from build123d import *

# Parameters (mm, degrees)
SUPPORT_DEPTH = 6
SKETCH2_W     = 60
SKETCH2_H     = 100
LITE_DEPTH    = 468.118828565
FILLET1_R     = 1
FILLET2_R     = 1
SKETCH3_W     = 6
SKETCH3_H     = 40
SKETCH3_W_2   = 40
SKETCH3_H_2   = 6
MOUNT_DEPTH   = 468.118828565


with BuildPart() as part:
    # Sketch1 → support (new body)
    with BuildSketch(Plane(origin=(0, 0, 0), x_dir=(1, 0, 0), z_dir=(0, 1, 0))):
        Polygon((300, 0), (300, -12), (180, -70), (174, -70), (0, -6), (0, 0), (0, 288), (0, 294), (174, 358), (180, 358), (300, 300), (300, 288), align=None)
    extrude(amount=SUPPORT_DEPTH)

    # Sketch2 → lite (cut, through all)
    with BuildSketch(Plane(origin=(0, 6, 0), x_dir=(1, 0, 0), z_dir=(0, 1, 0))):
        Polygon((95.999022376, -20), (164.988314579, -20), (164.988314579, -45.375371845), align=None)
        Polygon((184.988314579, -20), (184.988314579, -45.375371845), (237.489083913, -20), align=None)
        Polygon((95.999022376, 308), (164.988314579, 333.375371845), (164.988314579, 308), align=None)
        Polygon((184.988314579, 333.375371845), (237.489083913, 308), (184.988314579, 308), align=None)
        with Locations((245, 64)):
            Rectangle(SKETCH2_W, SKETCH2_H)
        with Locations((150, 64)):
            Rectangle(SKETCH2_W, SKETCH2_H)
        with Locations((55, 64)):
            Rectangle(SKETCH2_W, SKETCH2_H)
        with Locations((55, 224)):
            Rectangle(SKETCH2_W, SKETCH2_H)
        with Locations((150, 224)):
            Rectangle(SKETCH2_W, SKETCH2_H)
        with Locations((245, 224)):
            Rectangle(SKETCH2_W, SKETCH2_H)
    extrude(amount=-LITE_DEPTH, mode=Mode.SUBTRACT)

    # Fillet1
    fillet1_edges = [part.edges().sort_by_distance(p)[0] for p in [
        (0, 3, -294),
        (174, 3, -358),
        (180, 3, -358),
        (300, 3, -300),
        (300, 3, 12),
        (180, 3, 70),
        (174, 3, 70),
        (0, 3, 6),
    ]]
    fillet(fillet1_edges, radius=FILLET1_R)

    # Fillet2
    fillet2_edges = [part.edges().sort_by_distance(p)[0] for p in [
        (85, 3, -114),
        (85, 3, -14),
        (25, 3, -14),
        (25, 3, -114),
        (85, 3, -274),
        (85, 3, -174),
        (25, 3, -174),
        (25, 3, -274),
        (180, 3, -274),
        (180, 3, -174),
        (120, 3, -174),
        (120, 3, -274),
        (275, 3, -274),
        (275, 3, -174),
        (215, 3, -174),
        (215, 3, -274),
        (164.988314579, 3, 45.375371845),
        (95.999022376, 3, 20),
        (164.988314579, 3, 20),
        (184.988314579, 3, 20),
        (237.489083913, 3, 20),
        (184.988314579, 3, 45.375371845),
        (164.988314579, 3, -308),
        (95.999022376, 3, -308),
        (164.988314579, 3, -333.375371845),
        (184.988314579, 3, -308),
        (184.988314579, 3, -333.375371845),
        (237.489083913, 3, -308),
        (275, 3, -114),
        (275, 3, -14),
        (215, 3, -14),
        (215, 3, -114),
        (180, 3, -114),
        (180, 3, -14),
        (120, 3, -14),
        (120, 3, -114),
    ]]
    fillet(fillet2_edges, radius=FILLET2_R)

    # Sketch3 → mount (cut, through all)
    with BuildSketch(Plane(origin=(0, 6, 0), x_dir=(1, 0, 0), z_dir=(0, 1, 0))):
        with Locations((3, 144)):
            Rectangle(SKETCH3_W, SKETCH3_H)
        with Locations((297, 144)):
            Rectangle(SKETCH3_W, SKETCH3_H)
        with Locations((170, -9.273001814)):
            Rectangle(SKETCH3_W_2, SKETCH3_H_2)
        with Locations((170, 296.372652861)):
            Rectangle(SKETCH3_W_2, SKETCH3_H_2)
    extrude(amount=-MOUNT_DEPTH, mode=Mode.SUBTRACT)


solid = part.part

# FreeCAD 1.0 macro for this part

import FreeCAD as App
import Part
import Sketcher

V = App.Vector
Q = App.Units.Quantity


def edges_at(feature, points):
    """Names of the edges that pass closest to the given points."""
    edges = feature.Shape.Edges
    near = lambda p: min(range(len(edges)), key=lambda i: edges[i].distToShape(Part.Vertex(*p))[0])
    return sorted({f"Edge{near(p) + 1}" for p in points})

doc = App.newDocument("Part")
body = doc.addObject("PartDesign::Body", "Body")

# Sketch on XZ plane
sketch1 = doc.addObject("Sketcher::SketchObject", "Sketch")
body.addObject(sketch1)
sketch1.AttachmentSupport = (doc.XZ_Plane, [""])
sketch1.MapMode = "FlatFace"
sketch1.addGeometry([
    Part.LineSegment(V(300, 12, 0), V(300, -300, 0)),  # 0
    Part.LineSegment(V(300, -300, 0), V(180, -358, 0)),  # 1
    Part.LineSegment(V(180, -358, 0), V(174, -358, 0)),  # 2
    Part.LineSegment(V(174, -358, 0), V(0, -294, 0)),  # 3
    Part.LineSegment(V(0, -294, 0), V(0, 6, 0)),  # 4
    Part.LineSegment(V(0, 6, 0), V(174, 70, 0)),  # 5
    Part.LineSegment(V(174, 70, 0), V(180, 70, 0)),  # 6
    Part.LineSegment(V(180, 70, 0), V(300, 12, 0)),  # 7
], False)
sketch1.addConstraint([
    Sketcher.Constraint("Coincident", 0, 2, 1, 1),
    Sketcher.Constraint("Coincident", 1, 2, 2, 1),
    Sketcher.Constraint("Coincident", 2, 2, 3, 1),
    Sketcher.Constraint("Coincident", 3, 2, 4, 1),
    Sketcher.Constraint("Coincident", 4, 2, 5, 1),
    Sketcher.Constraint("Coincident", 5, 2, 6, 1),
    Sketcher.Constraint("Coincident", 6, 2, 7, 1),
    Sketcher.Constraint("Coincident", 7, 2, 0, 1),
    Sketcher.Constraint("Vertical", 0),
    Sketcher.Constraint("Horizontal", 2),
    Sketcher.Constraint("Vertical", 4),
    Sketcher.Constraint("Horizontal", 6),
    Sketcher.Constraint("PointOnObject", 3, 2, -2),
    Sketcher.Constraint("Vertical", 2, 2, 5, 2),
    Sketcher.Constraint("Vertical", 1, 2, 6, 2),
    Sketcher.Constraint("Equal", 3, 5),
    Sketcher.Constraint("Equal", 1, 7),
    Sketcher.Constraint("DistanceX", 2, 2, 2, 1, Q("6 mm")),
    Sketcher.Constraint("DistanceY", 0, 2, 0, 1, Q("312 mm")),
    Sketcher.Constraint("DistanceY", 4, 1, 4, 2, Q("300 mm")),
    Sketcher.Constraint("DistanceX", -1, 1, 0, 2, Q("300 mm")),
    Sketcher.Constraint("DistanceY", 0, 2, -1, 1, Q("300 mm")),
    Sketcher.Constraint("DistanceX", -1, 1, 1, 2, Q("180 mm")),
    Sketcher.Constraint("DistanceY", 1, 2, -1, 1, Q("358 mm")),
])
pad1 = doc.addObject("PartDesign::Pad", "Pad")
body.addObject(pad1)
pad1.Profile = sketch1
pad1.Length = 6
pad1.Reversed = True

# Sketch on XZ plane
sketch2 = doc.addObject("Sketcher::SketchObject", "Sketch001")
body.addObject(sketch2)
sketch2.AttachmentSupport = (doc.XZ_Plane, [""])
sketch2.MapMode = "FlatFace"
sketch2.AttachmentOffset = App.Placement(V(0, 0, -6), App.Rotation())
sketch2.addGeometry([
    Part.LineSegment(V(165, 20, 0), V(96, 20, 0)),  # 0
    Part.LineSegment(V(96, 20, 0), V(165, 45, 0)),  # 1
    Part.LineSegment(V(165, 45, 0), V(165, 20, 0)),  # 2
    Part.LineSegment(V(185, 20, 0), V(185, 45, 0)),  # 3
    Part.LineSegment(V(185, 45, 0), V(237, 20, 0)),  # 4
    Part.LineSegment(V(237, 20, 0), V(185, 20, 0)),  # 5
    Part.LineSegment(V(165, -333, 0), V(96, -308, 0)),  # 6
    Part.LineSegment(V(96, -308, 0), V(165, -308, 0)),  # 7
    Part.LineSegment(V(165, -308, 0), V(165, -333, 0)),  # 8
    Part.LineSegment(V(237, -308, 0), V(185, -333, 0)),  # 9
    Part.LineSegment(V(185, -333, 0), V(185, -308, 0)),  # 10
    Part.LineSegment(V(185, -308, 0), V(237, -308, 0)),  # 11
    Part.LineSegment(V(215, -114, 0), V(215, -14, 0)),  # 12
    Part.LineSegment(V(215, -14, 0), V(275, -14, 0)),  # 13
    Part.LineSegment(V(275, -14, 0), V(275, -114, 0)),  # 14
    Part.LineSegment(V(275, -114, 0), V(215, -114, 0)),  # 15
    Part.LineSegment(V(120, -114, 0), V(120, -14, 0)),  # 16
    Part.LineSegment(V(120, -14, 0), V(180, -14, 0)),  # 17
    Part.LineSegment(V(180, -14, 0), V(180, -114, 0)),  # 18
    Part.LineSegment(V(180, -114, 0), V(120, -114, 0)),  # 19
    Part.LineSegment(V(25, -114, 0), V(25, -14, 0)),  # 20
    Part.LineSegment(V(25, -14, 0), V(85, -14, 0)),  # 21
    Part.LineSegment(V(85, -14, 0), V(85, -114, 0)),  # 22
    Part.LineSegment(V(85, -114, 0), V(25, -114, 0)),  # 23
    Part.LineSegment(V(25, -274, 0), V(25, -174, 0)),  # 24
    Part.LineSegment(V(25, -174, 0), V(85, -174, 0)),  # 25
    Part.LineSegment(V(85, -174, 0), V(85, -274, 0)),  # 26
    Part.LineSegment(V(85, -274, 0), V(25, -274, 0)),  # 27
    Part.LineSegment(V(120, -274, 0), V(120, -174, 0)),  # 28
    Part.LineSegment(V(120, -174, 0), V(180, -174, 0)),  # 29
    Part.LineSegment(V(180, -174, 0), V(180, -274, 0)),  # 30
    Part.LineSegment(V(180, -274, 0), V(120, -274, 0)),  # 31
    Part.LineSegment(V(215, -274, 0), V(215, -174, 0)),  # 32
    Part.LineSegment(V(215, -174, 0), V(275, -174, 0)),  # 33
    Part.LineSegment(V(275, -174, 0), V(275, -274, 0)),  # 34
    Part.LineSegment(V(275, -274, 0), V(215, -274, 0)),  # 35
], False)
sketch2.addConstraint([
    Sketcher.Constraint("Coincident", 0, 2, 1, 1),
    Sketcher.Constraint("Coincident", 1, 2, 2, 1),
    Sketcher.Constraint("Coincident", 2, 2, 0, 1),
    Sketcher.Constraint("Coincident", 3, 2, 4, 1),
    Sketcher.Constraint("Coincident", 4, 2, 5, 1),
    Sketcher.Constraint("Coincident", 5, 2, 3, 1),
    Sketcher.Constraint("Coincident", 6, 2, 7, 1),
    Sketcher.Constraint("Coincident", 7, 2, 8, 1),
    Sketcher.Constraint("Coincident", 8, 2, 6, 1),
    Sketcher.Constraint("Coincident", 9, 2, 10, 1),
    Sketcher.Constraint("Coincident", 10, 2, 11, 1),
    Sketcher.Constraint("Coincident", 11, 2, 9, 1),
    Sketcher.Constraint("Coincident", 12, 2, 13, 1),
    Sketcher.Constraint("Coincident", 13, 2, 14, 1),
    Sketcher.Constraint("Coincident", 14, 2, 15, 1),
    Sketcher.Constraint("Coincident", 15, 2, 12, 1),
    Sketcher.Constraint("Coincident", 16, 2, 17, 1),
    Sketcher.Constraint("Coincident", 17, 2, 18, 1),
    Sketcher.Constraint("Coincident", 18, 2, 19, 1),
    Sketcher.Constraint("Coincident", 19, 2, 16, 1),
    Sketcher.Constraint("Coincident", 20, 2, 21, 1),
    Sketcher.Constraint("Coincident", 21, 2, 22, 1),
    Sketcher.Constraint("Coincident", 22, 2, 23, 1),
    Sketcher.Constraint("Coincident", 23, 2, 20, 1),
    Sketcher.Constraint("Coincident", 24, 2, 25, 1),
    Sketcher.Constraint("Coincident", 25, 2, 26, 1),
    Sketcher.Constraint("Coincident", 26, 2, 27, 1),
    Sketcher.Constraint("Coincident", 27, 2, 24, 1),
    Sketcher.Constraint("Coincident", 28, 2, 29, 1),
    Sketcher.Constraint("Coincident", 29, 2, 30, 1),
    Sketcher.Constraint("Coincident", 30, 2, 31, 1),
    Sketcher.Constraint("Coincident", 31, 2, 28, 1),
    Sketcher.Constraint("Coincident", 32, 2, 33, 1),
    Sketcher.Constraint("Coincident", 33, 2, 34, 1),
    Sketcher.Constraint("Coincident", 34, 2, 35, 1),
    Sketcher.Constraint("Coincident", 35, 2, 32, 1),
    Sketcher.Constraint("Horizontal", 0),
    Sketcher.Constraint("Vertical", 2),
    Sketcher.Constraint("Vertical", 3),
    Sketcher.Constraint("Horizontal", 5),
    Sketcher.Constraint("Horizontal", 7),
    Sketcher.Constraint("Vertical", 8),
    Sketcher.Constraint("Vertical", 10),
    Sketcher.Constraint("Horizontal", 11),
    Sketcher.Constraint("Vertical", 12),
    Sketcher.Constraint("Horizontal", 13),
    Sketcher.Constraint("Vertical", 14),
    Sketcher.Constraint("Horizontal", 15),
    Sketcher.Constraint("Vertical", 16),
    Sketcher.Constraint("Horizontal", 17),
    Sketcher.Constraint("Vertical", 18),
    Sketcher.Constraint("Horizontal", 19),
    Sketcher.Constraint("Vertical", 20),
    Sketcher.Constraint("Horizontal", 21),
    Sketcher.Constraint("Vertical", 22),
    Sketcher.Constraint("Horizontal", 23),
    Sketcher.Constraint("Vertical", 24),
    Sketcher.Constraint("Horizontal", 25),
    Sketcher.Constraint("Vertical", 26),
    Sketcher.Constraint("Horizontal", 27),
    Sketcher.Constraint("Vertical", 28),
    Sketcher.Constraint("Horizontal", 29),
    Sketcher.Constraint("Vertical", 30),
    Sketcher.Constraint("Horizontal", 31),
    Sketcher.Constraint("Vertical", 32),
    Sketcher.Constraint("Horizontal", 33),
    Sketcher.Constraint("Vertical", 34),
    Sketcher.Constraint("Horizontal", 35),
    Sketcher.Constraint("Horizontal", 1, 2, 3, 2),
    Sketcher.Constraint("Horizontal", 2, 2, 4, 2),
    Sketcher.Constraint("Horizontal", 8, 2, 9, 2),
    Sketcher.Constraint("Horizontal", 7, 2, 10, 2),
    Sketcher.Constraint("Horizontal", 13, 2, 16, 2),
    Sketcher.Constraint("Horizontal", 15, 2, 18, 2),
    Sketcher.Constraint("Horizontal", 17, 2, 20, 2),
    Sketcher.Constraint("Horizontal", 19, 2, 22, 2),
    Sketcher.Constraint("Horizontal", 25, 2, 28, 2),
    Sketcher.Constraint("Horizontal", 27, 2, 30, 2),
    Sketcher.Constraint("Horizontal", 29, 2, 32, 2),
    Sketcher.Constraint("Horizontal", 31, 2, 34, 2),
    Sketcher.Constraint("Vertical", 0, 2, 6, 2),
    Sketcher.Constraint("Vertical", 2, 2, 7, 2),
    Sketcher.Constraint("Vertical", 5, 2, 9, 2),
    Sketcher.Constraint("Vertical", 4, 2, 11, 2),
    Sketcher.Constraint("Vertical", 23, 2, 24, 2),
    Sketcher.Constraint("Vertical", 22, 2, 25, 2),
    Sketcher.Constraint("Vertical", 19, 2, 28, 2),
    Sketcher.Constraint("Vertical", 18, 2, 29, 2),
    Sketcher.Constraint("Vertical", 15, 2, 32, 2),
    Sketcher.Constraint("Vertical", 14, 2, 33, 2),
    Sketcher.Constraint("Equal", 15, 17),
    Sketcher.Constraint("Equal", 19, 21),
    Sketcher.Constraint("Equal", 3, 8),
    Sketcher.Constraint("Equal", 22, 24),
    Sketcher.Constraint("DistanceX", 13, 1, 13, 2, Q("60 mm")),
    Sketcher.Constraint("DistanceY", 12, 1, 12, 2, Q("100 mm")),
    Sketcher.Constraint("DistanceY", -1, 1, 0, 2, Q("20 mm")),
    Sketcher.Constraint("DistanceY", 6, 2, -1, 1, Q("308 mm")),
    Sketcher.Constraint("DistanceX", -1, 1, 12, 2, Q("215 mm")),
    Sketcher.Constraint("DistanceY", 12, 2, -1, 1, Q("14 mm")),
    Sketcher.Constraint("DistanceX", -1, 1, 16, 2, Q("120 mm")),
    Sketcher.Constraint("DistanceX", -1, 1, 20, 2, Q("25 mm")),
    Sketcher.Constraint("DistanceY", 24, 2, -1, 1, Q("174 mm")),
    Sketcher.Constraint("DistanceX", 1, 2, 3, 2, Q("20 mm")),
    Sketcher.Constraint("DistanceX", 5, 2, 5, 1, Q("52.500769 mm")),
    Sketcher.Constraint("DistanceY", 2, 2, 2, 1, Q("25.375372 mm")),
    Sketcher.Constraint("Distance", 1, Q("73.50804 mm")),
    Sketcher.Constraint("DistanceX", -1, 1, 0, 2, Q("95.999022 mm")),
])
pocket1 = doc.addObject("PartDesign::Pocket", "Pocket")
body.addObject(pocket1)
pocket1.Profile = sketch2
pocket1.Type = "ThroughAll"
pocket1.Reversed = True
doc.recompute()

fillet = doc.addObject("PartDesign::Fillet", "Fillet")
body.addObject(fillet)
fillet.Base = (pocket1, edges_at(pocket1, [
    (0, 3, -294),
    (174, 3, -358),
    (180, 3, -358),
    (300, 3, -300),
    (300, 3, 12),
    (180, 3, 70),
    (174, 3, 70),
    (0, 3, 6),
]))
fillet.Radius = 1
doc.recompute()

fillet2 = doc.addObject("PartDesign::Fillet", "Fillet001")
body.addObject(fillet2)
fillet2.Base = (fillet, edges_at(fillet, [
    (85, 3, -114),
    (85, 3, -14),
    (25, 3, -14),
    (25, 3, -114),
    (85, 3, -274),
    (85, 3, -174),
    (25, 3, -174),
    (25, 3, -274),
    (180, 3, -274),
    (180, 3, -174),
    (120, 3, -174),
    (120, 3, -274),
    (275, 3, -274),
    (275, 3, -174),
    (215, 3, -174),
    (215, 3, -274),
    (164.988, 3, 45.375),
    (95.999, 3, 20),
    (164.988, 3, 20),
    (184.988, 3, 20),
    (237.489, 3, 20),
    (184.988, 3, 45.375),
    (164.988, 3, -308),
    (95.999, 3, -308),
    (164.988, 3, -333.375),
    (184.988, 3, -308),
    (184.988, 3, -333.375),
    (237.489, 3, -308),
    (275, 3, -114),
    (275, 3, -14),
    (215, 3, -14),
    (215, 3, -114),
    (180, 3, -114),
    (180, 3, -14),
    (120, 3, -14),
    (120, 3, -114),
]))
fillet2.Radius = 1

# Sketch on XZ plane
sketch3 = doc.addObject("Sketcher::SketchObject", "Sketch002")
body.addObject(sketch3)
sketch3.AttachmentSupport = (doc.XZ_Plane, [""])
sketch3.MapMode = "FlatFace"
sketch3.AttachmentOffset = App.Placement(V(0, 0, -6), App.Rotation())
sketch3.addGeometry([
    Part.LineSegment(V(0, -164, 0), V(0, -124, 0)),  # 0
    Part.LineSegment(V(0, -124, 0), V(6, -124, 0)),  # 1
    Part.LineSegment(V(6, -124, 0), V(6, -164, 0)),  # 2
    Part.LineSegment(V(6, -164, 0), V(0, -164, 0)),  # 3
    Part.LineSegment(V(294, -164, 0), V(294, -124, 0)),  # 4
    Part.LineSegment(V(294, -124, 0), V(300, -124, 0)),  # 5
    Part.LineSegment(V(300, -124, 0), V(300, -164, 0)),  # 6
    Part.LineSegment(V(300, -164, 0), V(294, -164, 0)),  # 7
    Part.LineSegment(V(150, 6, 0), V(150, 12, 0)),  # 8
    Part.LineSegment(V(150, 12, 0), V(190, 12, 0)),  # 9
    Part.LineSegment(V(190, 12, 0), V(190, 6, 0)),  # 10
    Part.LineSegment(V(190, 6, 0), V(150, 6, 0)),  # 11
    Part.LineSegment(V(150, -299, 0), V(150, -293, 0)),  # 12
    Part.LineSegment(V(150, -293, 0), V(190, -293, 0)),  # 13
    Part.LineSegment(V(190, -293, 0), V(190, -299, 0)),  # 14
    Part.LineSegment(V(190, -299, 0), V(150, -299, 0)),  # 15
], False)
sketch3.addConstraint([
    Sketcher.Constraint("Coincident", 0, 2, 1, 1),
    Sketcher.Constraint("Coincident", 1, 2, 2, 1),
    Sketcher.Constraint("Coincident", 2, 2, 3, 1),
    Sketcher.Constraint("Coincident", 3, 2, 0, 1),
    Sketcher.Constraint("Coincident", 4, 2, 5, 1),
    Sketcher.Constraint("Coincident", 5, 2, 6, 1),
    Sketcher.Constraint("Coincident", 6, 2, 7, 1),
    Sketcher.Constraint("Coincident", 7, 2, 4, 1),
    Sketcher.Constraint("Coincident", 8, 2, 9, 1),
    Sketcher.Constraint("Coincident", 9, 2, 10, 1),
    Sketcher.Constraint("Coincident", 10, 2, 11, 1),
    Sketcher.Constraint("Coincident", 11, 2, 8, 1),
    Sketcher.Constraint("Coincident", 12, 2, 13, 1),
    Sketcher.Constraint("Coincident", 13, 2, 14, 1),
    Sketcher.Constraint("Coincident", 14, 2, 15, 1),
    Sketcher.Constraint("Coincident", 15, 2, 12, 1),
    Sketcher.Constraint("Vertical", 0),
    Sketcher.Constraint("Horizontal", 1),
    Sketcher.Constraint("Vertical", 2),
    Sketcher.Constraint("Horizontal", 3),
    Sketcher.Constraint("Vertical", 4),
    Sketcher.Constraint("Horizontal", 5),
    Sketcher.Constraint("Vertical", 6),
    Sketcher.Constraint("Horizontal", 7),
    Sketcher.Constraint("Vertical", 8),
    Sketcher.Constraint("Horizontal", 9),
    Sketcher.Constraint("Vertical", 10),
    Sketcher.Constraint("Horizontal", 11),
    Sketcher.Constraint("Vertical", 12),
    Sketcher.Constraint("Horizontal", 13),
    Sketcher.Constraint("Vertical", 14),
    Sketcher.Constraint("Horizontal", 15),
    Sketcher.Constraint("PointOnObject", 0, 2, -2),
    Sketcher.Constraint("Horizontal", 1, 2, 4, 2),
    Sketcher.Constraint("Horizontal", 3, 2, 6, 2),
    Sketcher.Constraint("Vertical", 11, 2, 12, 2),
    Sketcher.Constraint("Vertical", 10, 2, 13, 2),
    Sketcher.Constraint("Equal", 3, 5),
    Sketcher.Constraint("Equal", 15, 0),
    Sketcher.Constraint("Equal", 7, 8),
    Sketcher.Constraint("Equal", 10, 12),
    Sketcher.Constraint("DistanceX", 1, 1, 1, 2, Q("6 mm")),
    Sketcher.Constraint("DistanceX", 9, 1, 9, 2, Q("40 mm")),
    Sketcher.Constraint("DistanceY", 0, 2, -1, 1, Q("124 mm")),
    Sketcher.Constraint("DistanceX", -1, 1, 4, 2, Q("294 mm")),
    Sketcher.Constraint("DistanceX", -1, 1, 8, 2, Q("150 mm")),
    Sketcher.Constraint("DistanceY", -1, 1, 8, 2, Q("12.273002 mm")),
    Sketcher.Constraint("DistanceY", 12, 2, -1, 1, Q("293.372653 mm")),
])
pocket2 = doc.addObject("PartDesign::Pocket", "Pocket001")
body.addObject(pocket2)
pocket2.Profile = sketch3
pocket2.Type = "ThroughAll"
pocket2.Reversed = True

doc.recompute()
